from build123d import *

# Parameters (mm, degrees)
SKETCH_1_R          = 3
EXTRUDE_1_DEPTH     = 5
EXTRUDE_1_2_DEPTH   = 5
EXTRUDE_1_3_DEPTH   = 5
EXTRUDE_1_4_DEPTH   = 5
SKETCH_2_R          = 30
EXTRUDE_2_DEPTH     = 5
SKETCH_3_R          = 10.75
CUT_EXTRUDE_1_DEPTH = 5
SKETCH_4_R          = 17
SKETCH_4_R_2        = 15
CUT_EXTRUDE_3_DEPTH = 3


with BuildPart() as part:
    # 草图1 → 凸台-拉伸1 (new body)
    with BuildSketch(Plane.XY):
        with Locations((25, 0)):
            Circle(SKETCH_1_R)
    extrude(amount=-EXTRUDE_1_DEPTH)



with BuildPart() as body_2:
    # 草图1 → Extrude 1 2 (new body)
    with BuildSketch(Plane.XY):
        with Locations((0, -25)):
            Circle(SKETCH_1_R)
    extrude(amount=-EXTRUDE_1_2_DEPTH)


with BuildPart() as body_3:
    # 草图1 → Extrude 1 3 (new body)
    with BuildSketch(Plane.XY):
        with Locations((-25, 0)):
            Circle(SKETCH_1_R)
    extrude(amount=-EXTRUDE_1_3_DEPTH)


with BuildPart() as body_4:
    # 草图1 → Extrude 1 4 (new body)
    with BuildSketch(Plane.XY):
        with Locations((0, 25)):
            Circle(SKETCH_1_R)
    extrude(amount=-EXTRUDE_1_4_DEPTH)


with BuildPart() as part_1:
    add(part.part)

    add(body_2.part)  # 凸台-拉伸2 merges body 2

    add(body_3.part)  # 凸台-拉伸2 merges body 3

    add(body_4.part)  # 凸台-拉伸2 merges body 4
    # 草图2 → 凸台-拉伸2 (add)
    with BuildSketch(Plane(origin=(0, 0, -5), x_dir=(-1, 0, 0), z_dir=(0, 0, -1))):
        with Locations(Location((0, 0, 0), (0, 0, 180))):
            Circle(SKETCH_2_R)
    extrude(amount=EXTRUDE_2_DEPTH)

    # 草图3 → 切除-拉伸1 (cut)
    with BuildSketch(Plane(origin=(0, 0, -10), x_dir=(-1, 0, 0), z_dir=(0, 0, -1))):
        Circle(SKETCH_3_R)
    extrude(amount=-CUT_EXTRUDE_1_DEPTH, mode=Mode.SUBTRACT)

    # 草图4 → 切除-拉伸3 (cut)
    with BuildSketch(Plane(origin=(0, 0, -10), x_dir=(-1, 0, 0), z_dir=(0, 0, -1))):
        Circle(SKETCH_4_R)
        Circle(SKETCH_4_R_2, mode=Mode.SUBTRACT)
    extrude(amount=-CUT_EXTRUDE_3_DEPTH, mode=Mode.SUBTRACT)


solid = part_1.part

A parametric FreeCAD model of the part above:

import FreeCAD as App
import Part
import Sketcher
from FreeCAD import Vector

doc = App.newDocument("Part")
body = doc.addObject("PartDesign::Body", "Body")

sketch1 = body.newObject("Sketcher::SketchObject", "Sketch")
sketch1.AttachmentSupport = (doc.getObject("XY_Plane"), [""])
sketch1.MapMode = "FlatFace"
sketch1.addGeometry(Part.Circle(Vector(25, 0, 0), Vector(0, 0, 1), 3), False)
sketch1.addConstraint([
    Sketcher.Constraint("PointOnObject", 0, 3, -1),
    Sketcher.Constraint("Diameter", 0, 6.0),
    Sketcher.Constraint("DistanceX", -1, 1, 0, 3, 25.0),
])
pad1 = body.newObject("PartDesign::Pad", "Pad")
pad1.Profile = sketch1
pad1.Length = 5
pad1.Reversed = True
body2 = doc.addObject("PartDesign::Body", "Body001")

sketch2 = body2.newObject("Sketcher::SketchObject", "Sketch001")
sketch2.AttachmentSupport = (doc.getObject("XY_Plane001"), [""])
sketch2.MapMode = "FlatFace"
sketch2.addGeometry(Part.Circle(Vector(0, -25, 0), Vector(0, 0, 1), 3), False)
sketch2.addConstraint([
    Sketcher.Constraint("PointOnObject", 0, 3, -2),
    Sketcher.Constraint("Diameter", 0, 6.0),
    Sketcher.Constraint("DistanceY", 0, 3, -1, 1, 25.0),
])
pad2 = body2.newObject("PartDesign::Pad", "Pad001")
pad2.Profile = sketch2
pad2.Length = 5
pad2.Reversed = True
body3 = doc.addObject("PartDesign::Body", "Body002")

sketch3 = body3.newObject("Sketcher::SketchObject", "Sketch002")
sketch3.AttachmentSupport = (doc.getObject("XY_Plane002"), [""])
sketch3.MapMode = "FlatFace"
sketch3.addGeometry(Part.Circle(Vector(-25, 0, 0), Vector(0, 0, 1), 3), False)
sketch3.addConstraint([
    Sketcher.Constraint("PointOnObject", 0, 3, -1),
    Sketcher.Constraint("Diameter", 0, 6.0),
    Sketcher.Constraint("DistanceX", 0, 3, -1, 1, 25.0),
])
pad3 = body3.newObject("PartDesign::Pad", "Pad002")
pad3.Profile = sketch3
pad3.Length = 5
pad3.Reversed = True
body4 = doc.addObject("PartDesign::Body", "Body003")

sketch4 = body4.newObject("Sketcher::SketchObject", "Sketch003")
sketch4.AttachmentSupport = (doc.getObject("XY_Plane003"), [""])
sketch4.MapMode = "FlatFace"
sketch4.addGeometry(Part.Circle(Vector(0, 25, 0), Vector(0, 0, 1), 3), False)
sketch4.addConstraint([
    Sketcher.Constraint("PointOnObject", 0, 3, -2),
    Sketcher.Constraint("Diameter", 0, 6.0),
    Sketcher.Constraint("DistanceY", -1, 1, 0, 3, 25.0),
])
pad4 = body4.newObject("PartDesign::Pad", "Pad003")
pad4.Profile = sketch4
pad4.Length = 5
pad4.Reversed = True
body.AllowCompound = True
doc.recompute()

boolean = body.newObject("PartDesign::Boolean", "Boolean")
boolean.Type = "Fuse"
boolean.addObjects([body2])
doc.recompute()

boolean2 = body.newObject("PartDesign::Boolean", "Boolean001")
boolean2.Type = "Fuse"
boolean2.addObjects([body3])
doc.recompute()

boolean3 = body.newObject("PartDesign::Boolean", "Boolean002")
boolean3.Type = "Fuse"
boolean3.addObjects([body4])

sketch5 = body.newObject("Sketcher::SketchObject", "Sketch004")
sketch5.AttachmentSupport = (doc.getObject("XY_Plane"), [""])
sketch5.MapMode = "FlatFace"
sketch5.AttachmentOffset = App.Placement(Vector(0, 0, -5), App.Rotation())
sketch5.addGeometry(Part.Circle(Vector(0, 0, 0), Vector(0, 0, 1), 30), False)
sketch5.addConstraint([
    Sketcher.Constraint("Coincident", 0, 3, -1, 1),
    Sketcher.Constraint("Diameter", 0, 60.0),
])
pad5 = body.newObject("PartDesign::Pad", "Pad004")
pad5.Profile = sketch5
pad5.Length = 5
pad5.Reversed = True

sketch6 = body.newObject("Sketcher::SketchObject", "Sketch005")
sketch6.AttachmentSupport = (doc.getObject("XY_Plane"), [""])
sketch6.MapMode = "FlatFace"
sketch6.AttachmentOffset = App.Placement(Vector(0, 0, -10), App.Rotation())
sketch6.addGeometry(Part.Circle(Vector(0, 0, 0), Vector(0, 0, 1), 11), False)
sketch6.addConstraint([
    Sketcher.Constraint("Coincident", 0, 3, -1, 1),
    Sketcher.Constraint("Diameter", 0, 21.5),
])
pocket1 = body.newObject("PartDesign::Pocket", "Pocket")
pocket1.Profile = sketch6
pocket1.Length = 5
pocket1.Reversed = True

sketch7 = body.newObject("Sketcher::SketchObject", "Sketch006")
sketch7.AttachmentSupport = (doc.getObject("XY_Plane"), [""])
sketch7.MapMode = "FlatFace"
sketch7.AttachmentOffset = App.Placement(Vector(0, 0, -10), App.Rotation())
sketch7.addGeometry([
    Part.Circle(Vector(0, 0, 0), Vector(0, 0, 1), 17),
    Part.Circle(Vector(0, 0, 0), Vector(0, 0, 1), 15),
], False)
sketch7.addConstraint([
    Sketcher.Constraint("Coincident", 0, 3, -1, 1),
    Sketcher.Constraint("Coincident", 1, 3, -1, 1),
    Sketcher.Constraint("Diameter", 0, 34.0),
    Sketcher.Constraint("Diameter", 1, 30.0),
])
pocket2 = body.newObject("PartDesign::Pocket", "Pocket001")
pocket2.Profile = sketch7
pocket2.Length = 3
pocket2.Reversed = True

doc.recompute()
